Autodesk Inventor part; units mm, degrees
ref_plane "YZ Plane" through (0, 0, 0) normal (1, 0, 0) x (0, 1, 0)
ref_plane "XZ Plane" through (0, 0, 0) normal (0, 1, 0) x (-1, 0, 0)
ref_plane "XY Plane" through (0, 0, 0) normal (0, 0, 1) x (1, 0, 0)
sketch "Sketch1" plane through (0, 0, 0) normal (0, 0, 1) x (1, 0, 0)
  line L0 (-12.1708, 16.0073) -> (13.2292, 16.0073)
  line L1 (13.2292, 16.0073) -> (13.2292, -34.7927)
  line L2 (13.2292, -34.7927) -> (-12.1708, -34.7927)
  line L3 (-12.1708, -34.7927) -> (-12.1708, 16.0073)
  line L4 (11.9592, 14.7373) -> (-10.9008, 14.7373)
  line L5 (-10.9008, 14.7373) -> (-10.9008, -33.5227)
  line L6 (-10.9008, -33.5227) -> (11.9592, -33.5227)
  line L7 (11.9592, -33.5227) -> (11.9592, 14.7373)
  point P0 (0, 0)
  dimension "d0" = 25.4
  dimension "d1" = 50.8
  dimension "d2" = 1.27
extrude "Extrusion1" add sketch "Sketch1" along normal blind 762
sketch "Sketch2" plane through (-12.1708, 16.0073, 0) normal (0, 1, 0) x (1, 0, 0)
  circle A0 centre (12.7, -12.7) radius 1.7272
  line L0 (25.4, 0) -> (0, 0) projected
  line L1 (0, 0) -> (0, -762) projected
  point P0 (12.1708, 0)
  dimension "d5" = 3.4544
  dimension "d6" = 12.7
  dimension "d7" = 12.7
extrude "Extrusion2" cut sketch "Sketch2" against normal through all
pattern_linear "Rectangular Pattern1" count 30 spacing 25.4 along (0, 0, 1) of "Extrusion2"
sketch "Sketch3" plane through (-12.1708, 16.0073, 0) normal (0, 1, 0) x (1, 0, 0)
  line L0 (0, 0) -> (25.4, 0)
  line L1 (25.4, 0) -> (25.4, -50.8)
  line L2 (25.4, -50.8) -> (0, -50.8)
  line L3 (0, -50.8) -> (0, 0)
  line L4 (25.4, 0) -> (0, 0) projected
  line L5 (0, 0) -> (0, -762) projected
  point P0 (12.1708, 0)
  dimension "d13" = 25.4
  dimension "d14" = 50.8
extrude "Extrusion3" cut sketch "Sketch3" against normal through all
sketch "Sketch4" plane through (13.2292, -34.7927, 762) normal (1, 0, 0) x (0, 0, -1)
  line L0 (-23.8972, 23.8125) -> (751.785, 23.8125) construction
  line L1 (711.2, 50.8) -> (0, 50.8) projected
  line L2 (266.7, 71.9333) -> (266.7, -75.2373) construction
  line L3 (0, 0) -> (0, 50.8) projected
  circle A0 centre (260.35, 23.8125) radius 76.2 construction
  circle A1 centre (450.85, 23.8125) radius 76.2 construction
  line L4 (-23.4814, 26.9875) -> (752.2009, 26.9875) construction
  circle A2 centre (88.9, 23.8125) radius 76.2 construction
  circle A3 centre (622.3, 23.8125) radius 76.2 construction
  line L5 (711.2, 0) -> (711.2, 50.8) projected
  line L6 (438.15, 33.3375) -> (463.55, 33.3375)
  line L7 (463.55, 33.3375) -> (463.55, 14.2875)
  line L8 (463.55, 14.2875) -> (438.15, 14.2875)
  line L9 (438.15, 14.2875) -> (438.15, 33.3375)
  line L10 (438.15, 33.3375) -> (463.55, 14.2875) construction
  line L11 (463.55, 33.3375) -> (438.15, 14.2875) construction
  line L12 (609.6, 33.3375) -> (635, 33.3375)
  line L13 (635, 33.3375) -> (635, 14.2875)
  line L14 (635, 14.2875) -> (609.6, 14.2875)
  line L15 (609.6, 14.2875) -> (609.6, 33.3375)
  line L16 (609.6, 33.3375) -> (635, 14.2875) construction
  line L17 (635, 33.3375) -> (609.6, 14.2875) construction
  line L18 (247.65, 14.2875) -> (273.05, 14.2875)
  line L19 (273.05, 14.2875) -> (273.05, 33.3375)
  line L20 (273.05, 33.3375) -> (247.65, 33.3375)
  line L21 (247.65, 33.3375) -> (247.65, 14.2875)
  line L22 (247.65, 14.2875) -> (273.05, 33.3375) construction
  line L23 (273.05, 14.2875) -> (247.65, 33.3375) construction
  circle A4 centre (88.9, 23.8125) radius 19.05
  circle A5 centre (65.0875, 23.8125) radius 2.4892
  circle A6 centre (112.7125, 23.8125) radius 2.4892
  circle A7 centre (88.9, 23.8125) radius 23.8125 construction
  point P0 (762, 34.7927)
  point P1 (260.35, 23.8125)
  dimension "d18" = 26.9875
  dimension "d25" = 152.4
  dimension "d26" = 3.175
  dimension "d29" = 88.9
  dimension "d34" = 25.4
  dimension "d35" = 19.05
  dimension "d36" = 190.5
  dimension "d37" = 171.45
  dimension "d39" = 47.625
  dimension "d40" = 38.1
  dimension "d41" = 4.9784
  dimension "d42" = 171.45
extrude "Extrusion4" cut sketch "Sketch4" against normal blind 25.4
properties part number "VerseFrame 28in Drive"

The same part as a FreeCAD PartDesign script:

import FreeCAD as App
import Part
import Sketcher

V = App.Vector
Q = App.Units.Quantity

doc = App.newDocument("Part")
params = doc.addObject("Spreadsheet::Sheet", "Params")
for row, (alias, value) in enumerate([
    ("sketch1_width", "1 in"),
    ("sketch1_height", "2 in"),
    ("pad1_length", "30 in"),
    ("sketch2_diameter", "0.136 in"),
    ("linearpattern_pitch", "1 in"),
    ("sketch3_width", "1 in"),
    ("sketch3_height", "2 in"),
    ("sketch4_diameter", "1.5 in"),
    ("sketch4_height", "1 in"),
    ("sketch4_diameter2", "0.196 in"),
    ("sketch4_width", "0.75 in"),
    ("pocket3_length", "1 in"),
], start=1):
    params.set(f"A{row}", alias)
    params.set(f"B{row}", "=" + value)
    params.setAlias(f"B{row}", alias)

body = doc.addObject("PartDesign::Body", "Body")

sketch1 = doc.addObject("Sketcher::SketchObject", "Sketch")
body.addObject(sketch1)
sketch1.AttachmentSupport = (doc.XY_Plane, [""])
sketch1.MapMode = "FlatFace"
sketch1.addGeometry([
    Part.LineSegment(V(13, 16, 0), V(-12, 16, 0)),
    Part.LineSegment(V(-12, 16, 0), V(-12, -35, 0)),
    Part.LineSegment(V(-12, -35, 0), V(13, -35, 0)),
    Part.LineSegment(V(13, -35, 0), V(13, 16, 0)),
    Part.LineSegment(V(-11, 15, 0), V(12, 15, 0)),
    Part.LineSegment(V(12, 15, 0), V(12, -34, 0)),
    Part.LineSegment(V(12, -34, 0), V(-11, -34, 0)),
    Part.LineSegment(V(-11, -34, 0), V(-11, 15, 0)),
], False)
sketch1.addConstraint([
    Sketcher.Constraint("Coincident", 0, 2, 1, 1),
    Sketcher.Constraint("Coincident", 1, 2, 2, 1),
    Sketcher.Constraint("Coincident", 2, 2, 3, 1),
    Sketcher.Constraint("Coincident", 3, 2, 0, 1),
    Sketcher.Constraint("Coincident", 4, 2, 5, 1),
    Sketcher.Constraint("Coincident", 5, 2, 6, 1),
    Sketcher.Constraint("Coincident", 6, 2, 7, 1),
    Sketcher.Constraint("Coincident", 7, 2, 4, 1),
    Sketcher.Constraint("Horizontal", 0),
    Sketcher.Constraint("Vertical", 1),
    Sketcher.Constraint("Horizontal", 2),
    Sketcher.Constraint("Vertical", 3),
    Sketcher.Constraint("Horizontal", 4),
    Sketcher.Constraint("Vertical", 5),
    Sketcher.Constraint("Horizontal", 6),
    Sketcher.Constraint("Vertical", 7),
    Sketcher.Constraint("DistanceX", 0, 2, 0, 1, Q("1 in")),
    Sketcher.Constraint("DistanceY", 1, 2, 1, 1, Q("2 in")),
    Sketcher.Constraint("DistanceX", 4, 2, 3, 2, Q("0.05 in")),
    Sketcher.Constraint("DistanceY", 4, 2, 3, 2, Q("0.05 in")),
    Sketcher.Constraint("DistanceY", 2, 2, 5, 2, Q("0.05 in")),
    Sketcher.Constraint("DistanceX", 1, 2, 6, 2, Q("0.05 in")),
    Sketcher.Constraint("DistanceY", -1, 1, 0, 2, Q("0.6302 in")),
    Sketcher.Constraint("DistanceX", 0, 2, -1, 1, Q("12.1708 mm")),
])
sketch1.setExpression("Constraints[16]", "Params.sketch1_width")
sketch1.setExpression("Constraints[17]", "Params.sketch1_height")
pad1 = doc.addObject("PartDesign::Pad", "Pad")
body.addObject(pad1)
pad1.Profile = sketch1
pad1.setExpression("Length", "Params.pad1_length")

sketch2 = doc.addObject("Sketcher::SketchObject", "Sketch001")
body.addObject(sketch2)
sketch2.AttachmentSupport = (doc.XZ_Plane, [""])
sketch2.MapMode = "FlatFace"
sketch2.AttachmentOffset = App.Placement(V(0, 0, -0.6302087 * 25.4), App.Rotation())
sketch2.addGeometry(Part.Circle(V(0.5, 12.7, 0), V(0, 0, 1), 1.7), False)
sketch2.addConstraint([
    Sketcher.Constraint("Diameter", 0, Q("0.136 in")),
    Sketcher.Constraint("DistanceY", -1, 1, 0, 3, Q("0.5 in")),
    Sketcher.Constraint("DistanceX", -1, 1, 0, 3, Q("0.5292 mm")),
])
sketch2.setExpression("Constraints[0]", "Params.sketch2_diameter")
pocket1 = doc.addObject("PartDesign::Pocket", "Pocket")
body.addObject(pocket1)
pocket1.Profile = sketch2
pocket1.Type = "ThroughAll"
pocket1.Reversed = True
doc.recompute()

linearpattern = doc.addObject("PartDesign::LinearPattern", "LinearPattern")
body.addObject(linearpattern)
linearpattern.Originals = [pocket1]
linearpattern.Direction = (doc.Z_Axis, [""])
linearpattern.Mode = "offset"
linearpattern.setExpression("Offset", "Params.linearpattern_pitch")
linearpattern.Occurrences = 30
body.Tip = linearpattern

sketch3 = doc.addObject("Sketcher::SketchObject", "Sketch002")
body.addObject(sketch3)
sketch3.AttachmentSupport = (doc.XZ_Plane, [""])
sketch3.MapMode = "FlatFace"
sketch3.AttachmentOffset = App.Placement(V(0, 0, -0.6302087 * 25.4), App.Rotation())
sketch3.addGeometry([
    Part.LineSegment(V(13, 0, 0), V(-12, 0, 0)),
    Part.LineSegment(V(-12, 0, 0), V(-12, 51, 0)),
    Part.LineSegment(V(-12, 51, 0), V(13, 51, 0)),
    Part.LineSegment(V(13, 51, 0), V(13, 0, 0)),
], False)
sketch3.addConstraint([
    Sketcher.Constraint("Coincident", 0, 2, 1, 1),
    Sketcher.Constraint("Coincident", 1, 2, 2, 1),
    Sketcher.Constraint("Coincident", 2, 2, 3, 1),
    Sketcher.Constraint("Coincident", 3, 2, 0, 1),
    Sketcher.Constraint("Horizontal", 0),
    Sketcher.Constraint("Vertical", 1),
    Sketcher.Constraint("Horizontal", 2),
    Sketcher.Constraint("Vertical", 3),
    Sketcher.Constraint("PointOnObject", 0, 2, -1),
    Sketcher.Constraint("DistanceX", 0, 2, 0, 1, Q("1 in")),
    Sketcher.Constraint("DistanceY", 1, 1, 1, 2, Q("2 in")),
    Sketcher.Constraint("DistanceX", 0, 2, -1, 1, Q("12.1708 mm")),
])
sketch3.setExpression("Constraints[9]", "Params.sketch3_width")
sketch3.setExpression("Constraints[10]", "Params.sketch3_height")
pocket2 = doc.addObject("PartDesign::Pocket", "Pocket001")
body.addObject(pocket2)
pocket2.Profile = sketch3
pocket2.Type = "ThroughAll"
pocket2.Reversed = True

sketch4 = doc.addObject("Sketcher::SketchObject", "Sketch003")
body.addObject(sketch4)
sketch4.AttachmentSupport = (doc.YZ_Plane, [""])
sketch4.MapMode = "FlatFace"
sketch4.AttachmentOffset = App.Placement(V(0, 0, 13.2292), App.Rotation())
sketch4.addGeometry([
    Part.LineSegment(V(-1.5, 298.4, 0), V(-1.5, 323.9, 0)),
    Part.LineSegment(V(-1.5, 323.9, 0), V(-20.5, 323.9, 0)),
    Part.LineSegment(V(-20.5, 323.9, 0), V(-20.5, 298.4, 0)),
    Part.LineSegment(V(-20.5, 298.4, 0), V(-1.5, 298.4, 0)),
    Part.LineSegment(V(-1.5, 127, 0), V(-1.5, 152.4, 0)),
    Part.LineSegment(V(-1.5, 152.4, 0), V(-20.5, 152.4, 0)),
    Part.LineSegment(V(-20.5, 152.4, 0), V(-20.5, 127, 0)),
    Part.LineSegment(V(-20.5, 127, 0), V(-1.5, 127, 0)),
    Part.LineSegment(V(-1.5, 514.4, 0), V(-20.5, 514.4, 0)),
    Part.LineSegment(V(-20.5, 514.4, 0), V(-20.5, 488.9, 0)),
    Part.LineSegment(V(-20.5, 488.9, 0), V(-1.5, 488.9, 0)),
    Part.LineSegment(V(-1.5, 488.9, 0), V(-1.5, 514.4, 0)),
    Part.Circle(V(-11, 673.1, 0), V(0, 0, 1), 19.1),
    Part.Circle(V(-11, 696.9, 0), V(0, 0, 1), 2.5),
    Part.Circle(V(-11, 649.3, 0), V(0, 0, 1), 2.5),
], False)
sketch4.addConstraint([
    Sketcher.Constraint("Coincident", 0, 2, 1, 1),
    Sketcher.Constraint("Coincident", 1, 2, 2, 1),
    Sketcher.Constraint("Coincident", 2, 2, 3, 1),
    Sketcher.Constraint("Coincident", 3, 2, 0, 1),
    Sketcher.Constraint("Coincident", 4, 2, 5, 1),
    Sketcher.Constraint("Coincident", 5, 2, 6, 1),
    Sketcher.Constraint("Coincident", 6, 2, 7, 1),
    Sketcher.Constraint("Coincident", 7, 2, 4, 1),
    Sketcher.Constraint("Coincident", 8, 2, 9, 1),
    Sketcher.Constraint("Coincident", 9, 2, 10, 1),
    Sketcher.Constraint("Coincident", 10, 2, 11, 1),
    Sketcher.Constraint("Coincident", 11, 2, 8, 1),
    Sketcher.Constraint("Vertical", 0),
    Sketcher.Constraint("Horizontal", 1),
    Sketcher.Constraint("Vertical", 2),
    Sketcher.Constraint("Horizontal", 3),
    Sketcher.Constraint("Vertical", 4),
    Sketcher.Constraint("Horizontal", 5),
    Sketcher.Constraint("Vertical", 6),
    Sketcher.Constraint("Horizontal", 7),
    Sketcher.Constraint("Horizontal", 8),
    Sketcher.Constraint("Vertical", 9),
    Sketcher.Constraint("Horizontal", 10),
    Sketcher.Constraint("Vertical", 11),
    Sketcher.Constraint("Equal", 13, 14),
    Sketcher.Constraint("Vertical", 12, 3, 13, 3),
    Sketcher.Constraint("Vertical", 13, 3, 14, 3),
    Sketcher.Constraint("Vertical", 3, 2, 4, 2),
    Sketcher.Constraint("Vertical", 2, 2, 5, 2),
    Sketcher.Constraint("Vertical", 6, 2, 8, 2),
    Sketcher.Constraint("Vertical", 7, 2, 10, 2),
    Sketcher.Constraint("Equal", 2, 4),
    Sketcher.Constraint("Equal", 6, 9),
    Sketcher.Constraint("Diameter", 12, Q("1.5 in")),
    Sketcher.Constraint("DistanceY", 0, 1, 0, 2, Q("1 in")),
    Sketcher.Constraint("Diameter", 13, Q("0.196 in")),
    Sketcher.Constraint("DistanceY", -1, 1, 4, 2, Q("6 in")),
    Sketcher.Constraint("DistanceX", 1, 2, 1, 1, Q("0.75 in")),
    Sketcher.Constraint("DistanceY", 1, 2, 8, 2, Q("7.5 in")),
    Sketcher.Constraint("DistanceY", 4, 2, 0, 2, Q("6.75 in")),
    Sketcher.Constraint("DistanceY", 14, 3, 13, 3, Q("1.875 in")),
    Sketcher.Constraint("DistanceY", -1, 1, 12, 3, Q("26.5 in")),
    Sketcher.Constraint("DistanceY", -1, 1, 13, 3, Q("27.4375 in")),
    Sketcher.Constraint("DistanceX", 14, 3, 0, 2, Q("0.375 in")),
    Sketcher.Constraint("DistanceX", 12, 3, -1, 1, Q("0.4323 in")),
])
sketch4.setExpression("Constraints[33]", "Params.sketch4_diameter")
sketch4.setExpression("Constraints[34]", "Params.sketch4_height")
sketch4.setExpression("Constraints[35]", "Params.sketch4_diameter2")
sketch4.setExpression("Constraints[37]", "Params.sketch4_width")
pocket3 = doc.addObject("PartDesign::Pocket", "Pocket002")
body.addObject(pocket3)
pocket3.Profile = sketch4
pocket3.setExpression("Length", "Params.pocket3_length")

doc.recompute()
